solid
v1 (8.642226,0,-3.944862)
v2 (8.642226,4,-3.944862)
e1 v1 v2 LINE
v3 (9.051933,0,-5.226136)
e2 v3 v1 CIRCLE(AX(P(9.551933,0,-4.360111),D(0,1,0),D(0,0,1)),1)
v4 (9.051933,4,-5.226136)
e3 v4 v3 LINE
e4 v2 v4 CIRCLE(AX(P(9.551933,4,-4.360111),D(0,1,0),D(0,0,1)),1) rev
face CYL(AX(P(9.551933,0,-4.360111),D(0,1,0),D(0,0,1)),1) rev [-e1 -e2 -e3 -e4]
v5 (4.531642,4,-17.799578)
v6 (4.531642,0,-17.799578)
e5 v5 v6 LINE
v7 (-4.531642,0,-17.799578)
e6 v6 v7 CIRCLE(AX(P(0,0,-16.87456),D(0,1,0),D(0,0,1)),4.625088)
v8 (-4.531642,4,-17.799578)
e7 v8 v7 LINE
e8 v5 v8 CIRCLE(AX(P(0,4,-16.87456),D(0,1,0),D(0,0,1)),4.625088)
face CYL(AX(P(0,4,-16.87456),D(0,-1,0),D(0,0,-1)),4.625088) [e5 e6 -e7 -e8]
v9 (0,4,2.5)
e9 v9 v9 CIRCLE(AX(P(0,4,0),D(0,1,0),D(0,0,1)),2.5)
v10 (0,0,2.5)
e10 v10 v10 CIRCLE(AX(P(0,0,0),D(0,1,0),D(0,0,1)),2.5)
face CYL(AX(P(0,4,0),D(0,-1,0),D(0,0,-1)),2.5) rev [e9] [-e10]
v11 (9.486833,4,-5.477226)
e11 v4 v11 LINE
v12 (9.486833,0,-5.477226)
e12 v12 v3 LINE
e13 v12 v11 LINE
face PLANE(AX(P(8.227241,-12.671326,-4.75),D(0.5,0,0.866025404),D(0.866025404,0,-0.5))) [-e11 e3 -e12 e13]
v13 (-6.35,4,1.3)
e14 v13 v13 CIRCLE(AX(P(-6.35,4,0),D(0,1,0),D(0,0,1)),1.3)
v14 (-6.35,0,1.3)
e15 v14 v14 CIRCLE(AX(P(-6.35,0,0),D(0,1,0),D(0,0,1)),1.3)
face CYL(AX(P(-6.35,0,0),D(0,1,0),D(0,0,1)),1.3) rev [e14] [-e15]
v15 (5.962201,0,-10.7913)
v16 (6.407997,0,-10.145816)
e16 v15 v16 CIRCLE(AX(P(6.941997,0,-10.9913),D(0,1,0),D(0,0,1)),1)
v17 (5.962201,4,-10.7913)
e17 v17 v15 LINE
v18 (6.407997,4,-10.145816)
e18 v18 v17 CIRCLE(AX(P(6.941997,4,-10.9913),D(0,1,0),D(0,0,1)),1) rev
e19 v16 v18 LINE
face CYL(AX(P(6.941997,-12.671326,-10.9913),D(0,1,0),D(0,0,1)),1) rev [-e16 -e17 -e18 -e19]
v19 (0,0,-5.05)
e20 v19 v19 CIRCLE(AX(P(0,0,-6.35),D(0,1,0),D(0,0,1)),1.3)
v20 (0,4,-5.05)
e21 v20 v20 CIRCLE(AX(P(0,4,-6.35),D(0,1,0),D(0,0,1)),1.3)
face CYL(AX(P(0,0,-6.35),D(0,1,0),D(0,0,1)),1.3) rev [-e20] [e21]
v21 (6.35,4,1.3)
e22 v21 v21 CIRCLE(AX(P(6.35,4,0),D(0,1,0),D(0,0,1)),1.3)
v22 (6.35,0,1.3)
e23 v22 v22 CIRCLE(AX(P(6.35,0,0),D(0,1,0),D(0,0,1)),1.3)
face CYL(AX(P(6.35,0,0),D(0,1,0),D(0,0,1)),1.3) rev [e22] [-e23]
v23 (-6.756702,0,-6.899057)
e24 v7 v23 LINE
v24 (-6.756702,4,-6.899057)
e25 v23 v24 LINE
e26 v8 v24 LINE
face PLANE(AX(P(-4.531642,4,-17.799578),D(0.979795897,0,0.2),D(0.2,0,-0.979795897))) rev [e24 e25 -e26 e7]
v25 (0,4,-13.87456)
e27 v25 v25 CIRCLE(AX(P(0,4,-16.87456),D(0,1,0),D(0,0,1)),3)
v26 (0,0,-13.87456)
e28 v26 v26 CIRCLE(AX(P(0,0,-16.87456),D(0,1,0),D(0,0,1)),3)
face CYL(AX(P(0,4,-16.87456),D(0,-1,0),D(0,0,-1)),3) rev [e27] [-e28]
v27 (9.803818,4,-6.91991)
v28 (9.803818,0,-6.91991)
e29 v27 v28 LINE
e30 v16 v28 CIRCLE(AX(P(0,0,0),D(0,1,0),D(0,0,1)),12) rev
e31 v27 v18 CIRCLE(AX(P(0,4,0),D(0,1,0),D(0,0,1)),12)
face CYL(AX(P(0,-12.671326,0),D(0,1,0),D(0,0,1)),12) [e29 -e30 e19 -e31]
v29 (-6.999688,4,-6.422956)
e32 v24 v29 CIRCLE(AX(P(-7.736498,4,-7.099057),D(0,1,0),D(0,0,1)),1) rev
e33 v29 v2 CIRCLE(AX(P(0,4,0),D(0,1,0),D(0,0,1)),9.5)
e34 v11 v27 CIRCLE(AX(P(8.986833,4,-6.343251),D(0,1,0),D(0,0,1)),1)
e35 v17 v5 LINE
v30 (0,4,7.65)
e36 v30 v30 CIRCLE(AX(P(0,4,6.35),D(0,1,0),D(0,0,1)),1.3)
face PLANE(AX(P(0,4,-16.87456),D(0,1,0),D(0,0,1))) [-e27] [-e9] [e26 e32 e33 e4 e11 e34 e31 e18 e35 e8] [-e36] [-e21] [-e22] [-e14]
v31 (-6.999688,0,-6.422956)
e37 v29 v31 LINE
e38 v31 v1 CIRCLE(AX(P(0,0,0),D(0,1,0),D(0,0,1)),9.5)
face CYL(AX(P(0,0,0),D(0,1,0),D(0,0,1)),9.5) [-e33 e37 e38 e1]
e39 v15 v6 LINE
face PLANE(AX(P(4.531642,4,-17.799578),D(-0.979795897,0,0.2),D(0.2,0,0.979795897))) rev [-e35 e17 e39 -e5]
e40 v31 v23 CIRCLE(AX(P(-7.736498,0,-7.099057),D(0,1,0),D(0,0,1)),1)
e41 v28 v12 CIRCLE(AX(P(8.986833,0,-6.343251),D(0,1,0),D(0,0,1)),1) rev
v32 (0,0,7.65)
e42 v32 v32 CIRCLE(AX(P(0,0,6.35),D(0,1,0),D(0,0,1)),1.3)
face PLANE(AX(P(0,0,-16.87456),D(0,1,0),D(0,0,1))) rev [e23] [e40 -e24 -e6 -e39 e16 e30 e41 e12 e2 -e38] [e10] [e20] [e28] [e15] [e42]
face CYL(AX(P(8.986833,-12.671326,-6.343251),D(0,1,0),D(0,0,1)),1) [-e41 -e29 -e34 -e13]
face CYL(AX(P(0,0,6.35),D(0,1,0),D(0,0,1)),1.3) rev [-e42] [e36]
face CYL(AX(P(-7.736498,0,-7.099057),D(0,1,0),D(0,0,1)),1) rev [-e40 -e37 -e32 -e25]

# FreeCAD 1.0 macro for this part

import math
import FreeCAD as App
import Part
import Sketcher
Q = App.Units.Quantity


def edges_at(feature, points):
    """Names of the edges that pass closest to the given points."""
    edges = feature.Shape.Edges
    near = lambda p: min(range(len(edges)), key=lambda i: edges[i].distToShape(Part.Vertex(*p))[0])
    return sorted({f"Edge{near(p) + 1}" for p in points})

doc = App.newDocument("Part")
body = doc.addObject("PartDesign::Body", "Body")

# Sketch on XZ plane
sketch1 = body.newObject("Sketcher::SketchObject", "Sketch")
sketch1.AttachmentSupport = (doc.getObject("XZ_Plane"), [""])
sketch1.MapMode = "FlatFace"
sketch1.addGeometry(Part.LineSegment(App.Vector(-4.531642, -17.799578, 0), App.Vector(-7.838367, -1.6, 0)), False)
sketch1.addGeometry(Part.ArcOfCircle(Part.Circle(App.Vector(0, 0, 0), App.Vector(0, 0, 1), 8), math.radians(-11.536959), math.radians(191.536959)), False)
sketch1.addGeometry(Part.LineSegment(App.Vector(7.838367, -1.6, 0), App.Vector(4.531642, -17.799578, 0)), False)
sketch1.addGeometry(Part.ArcOfCircle(Part.Circle(App.Vector(0, -16.87456, 0), App.Vector(0, 0, 1), 4.625088), math.radians(-168.463041), math.radians(-11.536959)), False)
sketch1.addGeometry(Part.Circle(App.Vector(0, 0, 0), App.Vector(0, 0, 1), 2.5), False)
sketch1.addGeometry(Part.Circle(App.Vector(0, -16.87456, 0), App.Vector(0, 0, 1), 3), False)
sketch1.addConstraint(Sketcher.Constraint("Tangent", 0, 2, 1, 2))
sketch1.addConstraint(Sketcher.Constraint("Tangent", 1, 1, 2, 1))
sketch1.addConstraint(Sketcher.Constraint("Tangent", 2, 2, 3, 2))
sketch1.addConstraint(Sketcher.Constraint("Tangent", 3, 1, 0, 1))
sketch1.addConstraint(Sketcher.Constraint("Coincident", 1, 3, -1, 1))
sketch1.addConstraint(Sketcher.Constraint("Coincident", 4, 3, -1, 1))
sketch1.addConstraint(Sketcher.Constraint("Coincident", 5, 3, 3, 3))
sketch1.addConstraint(Sketcher.Constraint("PointOnObject", 3, 3, -2))
sketch1.addConstraint(Sketcher.Constraint("Diameter", 4, Q("5 mm")))
sketch1.addConstraint(Sketcher.Constraint("Diameter", 5, Q("6 mm")))
sketch1.addConstraint(Sketcher.Constraint("Radius", 1, Q("8 mm")))
sketch1.addConstraint(Sketcher.Constraint("DistanceY", 0, 2, -1, 1, Q("1.6 mm")))
sketch1.addConstraint(Sketcher.Constraint("Radius", 3, Q("4.625088 mm")))
pad1 = body.newObject("PartDesign::Pad", "Pad")
pad1.Profile = sketch1
pad1.Length = 4
pad1.Reversed = True

# Sketch on XZ plane
sketch2 = body.newObject("Sketcher::SketchObject", "Sketch001")
sketch2.AttachmentSupport = (doc.getObject("XZ_Plane"), [""])
sketch2.MapMode = "FlatFace"
sketch2.AttachmentOffset = App.Placement(App.Vector(0, 0, -4), App.Rotation())
sketch2.addGeometry(Part.Circle(App.Vector(0, -6.35, 0), App.Vector(0, 0, 1), 1.3), False)
sketch2.addGeometry(Part.Circle(App.Vector(6.35, 0, 0), App.Vector(0, 0, 1), 1.3), False)
sketch2.addGeometry(Part.Circle(App.Vector(0, 6.35, 0), App.Vector(0, 0, 1), 1.3), False)
sketch2.addGeometry(Part.Circle(App.Vector(-6.35, 0, 0), App.Vector(0, 0, 1), 1.3), False)
sketch2.addConstraint(Sketcher.Constraint("Equal", 0, 1))
sketch2.addConstraint(Sketcher.Constraint("Equal", 1, 2))
sketch2.addConstraint(Sketcher.Constraint("Equal", 2, 3))
sketch2.addConstraint(Sketcher.Constraint("Symmetric", 0, 3, 2, 3, -1, 1))
sketch2.addConstraint(Sketcher.Constraint("Symmetric", 1, 3, 3, 3, -1, 1))
sketch2.addConstraint(Sketcher.Constraint("PointOnObject", 0, 3, -2))
sketch2.addConstraint(Sketcher.Constraint("PointOnObject", 1, 3, -1))
sketch2.addConstraint(Sketcher.Constraint("Diameter", 0, Q("2.6 mm")))
sketch2.addConstraint(Sketcher.Constraint("DistanceY", 0, 3, 2, 3, Q("12.7 mm")))
sketch2.addConstraint(Sketcher.Constraint("DistanceX", 3, 3, 1, 3, Q("12.7 mm")))
pocket1 = body.newObject("PartDesign::Pocket", "Pocket")
pocket1.Profile = sketch2
pocket1.Length = 4
pocket1.Reversed = True

# Sketch on XZ plane
sketch3 = body.newObject("Sketcher::SketchObject", "Sketch002")
sketch3.AttachmentSupport = (doc.getObject("XZ_Plane"), [""])
sketch3.MapMode = "FlatFace"
sketch3.addGeometry(Part.LineSegment(App.Vector(-7.838367, -1.6, 0), App.Vector(-6.813672, -6.61996, 0)), False)
sketch3.addGeometry(Part.ArcOfCircle(Part.Circle(App.Vector(0, 0, 0), App.Vector(0, 0, 1), 9.5), math.radians(-44.173857), math.radians(224.173857)), False)
sketch3.addGeometry(Part.LineSegment(App.Vector(6.813672, -6.61996, 0), App.Vector(7.838367, -1.6, 0)), False)
sketch3.addGeometry(Part.ArcOfCircle(Part.Circle(App.Vector(0, 0, 0), App.Vector(0, 0, 1), 8), math.radians(-11.536959), math.radians(191.536959)), False)
sketch3.addConstraint(Sketcher.Constraint("Coincident", 0, 2, 1, 2))
sketch3.addConstraint(Sketcher.Constraint("Coincident", 1, 1, 2, 1))
sketch3.addConstraint(Sketcher.Constraint("Tangent", 2, 2, 3, 1))
sketch3.addConstraint(Sketcher.Constraint("Tangent", 3, 2, 0, 1))
sketch3.addConstraint(Sketcher.Constraint("Coincident", 1, 3, -1, 1))
sketch3.addConstraint(Sketcher.Constraint("Coincident", 3, 3, -1, 1))
sketch3.addConstraint(Sketcher.Constraint("Horizontal", 0, 2, 1, 1))
sketch3.addConstraint(Sketcher.Constraint("Radius", 3, Q("8 mm")))
sketch3.addConstraint(Sketcher.Constraint("Radius", 1, Q("9.5 mm")))
sketch3.addConstraint(Sketcher.Constraint("DistanceY", 2, 2, -1, 1, Q("1.6 mm")))
pad2 = body.newObject("PartDesign::Pad", "Pad001")
pad2.Profile = sketch3
pad2.Length = 4
pad2.Reversed = True

# Sketch on XZ plane
sketch4 = body.newObject("Sketcher::SketchObject", "Sketch003")
sketch4.AttachmentSupport = (doc.getObject("XZ_Plane"), [""])
sketch4.MapMode = "FlatFace"
sketch4.addGeometry(Part.LineSegment(App.Vector(8.227241, -4.75, 0), App.Vector(10.392305, -6, 0)), False)
sketch4.addGeometry(Part.ArcOfCircle(Part.Circle(App.Vector(0, 0, 0), App.Vector(0, 0, 1), 12), math.radians(-90), math.radians(-30)), False)
sketch4.addGeometry(Part.LineSegment(App.Vector(0, -12, 0), App.Vector(0, -9.5, 0)), False)
sketch4.addGeometry(Part.ArcOfCircle(Part.Circle(App.Vector(0, 0, 0), App.Vector(0, 0, 1), 9.5), math.radians(-90), math.radians(-30)), False)
sketch4.addConstraint(Sketcher.Constraint("Coincident", 0, 2, 1, 2))
sketch4.addConstraint(Sketcher.Constraint("Coincident", 1, 1, 2, 1))
sketch4.addConstraint(Sketcher.Constraint("Coincident", 2, 2, 3, 1))
sketch4.addConstraint(Sketcher.Constraint("Coincident", 3, 2, 0, 1))
sketch4.addConstraint(Sketcher.Constraint("Vertical", 2))
sketch4.addConstraint(Sketcher.Constraint("Coincident", 1, 3, -1, 1))
sketch4.addConstraint(Sketcher.Constraint("Coincident", 3, 3, -1, 1))
sketch4.addConstraint(Sketcher.Constraint("PointOnObject", 1, 1, -2))
sketch4.addConstraint(Sketcher.Constraint("Radius", 1, Q("12 mm")))
sketch4.addConstraint(Sketcher.Constraint("Radius", 3, Q("9.5 mm")))
sketch4.addConstraint(Sketcher.Constraint("Angle", 0, Q("-30 deg")))
sketch4.addConstraint(Sketcher.Constraint("DistanceY", 0, 2, -1, 1, Q("6 mm")))
pad3 = body.newObject("PartDesign::Pad", "Pad002")
pad3.Profile = sketch4
pad3.Length = 4
pad3.Reversed = True
doc.recompute()

fillet = body.newObject("PartDesign::Fillet", "Fillet")
fillet.Base = (pad3, edges_at(pad3, [
    (-6.814, 2, -6.62),
    (6.05, 2, -10.364),
    (8.227, 2, -4.75),
    (10.392, 2, -6),
]))
fillet.Radius = 1

doc.recompute()
